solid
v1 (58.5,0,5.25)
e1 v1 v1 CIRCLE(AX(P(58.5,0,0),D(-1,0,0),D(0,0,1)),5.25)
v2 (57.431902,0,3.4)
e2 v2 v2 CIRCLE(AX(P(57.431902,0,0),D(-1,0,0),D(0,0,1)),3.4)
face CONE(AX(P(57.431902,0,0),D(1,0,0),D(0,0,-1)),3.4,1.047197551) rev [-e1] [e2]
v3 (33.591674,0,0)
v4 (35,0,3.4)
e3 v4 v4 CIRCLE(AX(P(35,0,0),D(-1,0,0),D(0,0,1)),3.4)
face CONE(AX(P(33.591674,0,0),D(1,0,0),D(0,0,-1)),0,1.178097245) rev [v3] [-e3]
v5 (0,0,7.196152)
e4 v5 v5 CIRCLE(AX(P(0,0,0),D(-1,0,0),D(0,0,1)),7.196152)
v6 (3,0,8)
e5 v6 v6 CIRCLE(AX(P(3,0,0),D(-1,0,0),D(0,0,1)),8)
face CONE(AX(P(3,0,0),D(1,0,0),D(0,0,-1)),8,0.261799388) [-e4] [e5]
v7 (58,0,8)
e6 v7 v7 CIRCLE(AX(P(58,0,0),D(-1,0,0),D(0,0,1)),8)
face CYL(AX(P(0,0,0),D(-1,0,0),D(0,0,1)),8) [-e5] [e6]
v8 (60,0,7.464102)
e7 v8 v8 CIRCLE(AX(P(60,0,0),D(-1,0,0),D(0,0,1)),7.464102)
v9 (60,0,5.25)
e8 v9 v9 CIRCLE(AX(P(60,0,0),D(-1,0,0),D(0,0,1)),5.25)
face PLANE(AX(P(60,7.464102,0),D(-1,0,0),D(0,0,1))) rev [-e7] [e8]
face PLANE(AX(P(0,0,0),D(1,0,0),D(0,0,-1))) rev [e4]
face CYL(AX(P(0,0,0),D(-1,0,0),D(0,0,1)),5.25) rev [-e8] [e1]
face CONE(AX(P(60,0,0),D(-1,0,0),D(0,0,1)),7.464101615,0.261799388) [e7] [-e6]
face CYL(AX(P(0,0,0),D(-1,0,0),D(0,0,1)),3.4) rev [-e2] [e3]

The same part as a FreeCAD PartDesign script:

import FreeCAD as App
import Part
import Sketcher
Q = App.Units.Quantity


def add_polygon(sketch, points):
    """Adds a closed chain of lines whose ends are joined by coincident constraints."""
    first, n = sketch.GeometryCount, len(points)
    for a, b in zip(points, points[1:] + points[:1]):
        sketch.addGeometry(Part.LineSegment(App.Vector(*a, 0), App.Vector(*b, 0)), False)
    for i in range(n):
        sketch.addConstraint(Sketcher.Constraint("Coincident", first + i, 2, first + (i + 1) % n, 1))

doc = App.newDocument("Part")
params = doc.addObject("Spreadsheet::Sheet", "Params")
for row, (alias, value) in enumerate([
    ("sketch1_width", "55 mm"),
    ("sketch1_width2", "1.5 mm"),
    ("revolution_angle", "360 deg"),
], start=1):
    params.set(f"A{row}", alias)
    params.set(f"B{row}", "=" + value)
    params.setAlias(f"B{row}", alias)

body = doc.addObject("PartDesign::Body", "Body")

# Sketch on XY plane
sketch1 = body.newObject("Sketcher::SketchObject", "Sketch")
sketch1.AttachmentSupport = (doc.getObject("XY_Plane"), [""])
sketch1.MapMode = "FlatFace"
add_polygon(sketch1, [(58, 8), (3, 8), (0, 7.2), (0, 0), (33.6, 0), (35, 3.4), (57.4, 3.4), (58.5, 5.2), (60, 5.2), (60, 7.5)])  # lines 0-9
sketch1.addConstraint([
    Sketcher.Constraint("Horizontal", 0),
    Sketcher.Constraint("Vertical", 2),
    Sketcher.Constraint("Horizontal", 3),
    Sketcher.Constraint("Horizontal", 5),
    Sketcher.Constraint("Horizontal", 7),
    Sketcher.Constraint("Vertical", 8),
    Sketcher.Constraint("Coincident", 2, 2, -1, 1),
    Sketcher.Constraint("DistanceX", 0, 2, 0, 1, Q("55 mm")),
    Sketcher.Constraint("Angle", 1, Q("-165 deg")),
    Sketcher.Constraint("Angle", 6, Q("60 deg")),
    Sketcher.Constraint("Angle", 9, Q("165 deg")),
    Sketcher.Constraint("DistanceX", 7, 1, 7, 2, Q("1.5 mm")),
    Sketcher.Constraint("DistanceX", -1, 1, 0, 2, Q("3 mm")),
    Sketcher.Constraint("DistanceY", -1, 1, 0, 2, Q("8 mm")),
    Sketcher.Constraint("DistanceX", -1, 1, 4, 2, Q("35 mm")),
    Sketcher.Constraint("DistanceX", -1, 1, 7, 2, Q("60 mm")),
    Sketcher.Constraint("Angle", 4, Q("67.5 deg")),
    Sketcher.Constraint("DistanceY", -1, 1, 4, 2, Q("3.4 mm")),
    Sketcher.Constraint("DistanceY", -1, 1, 6, 2, Q("5.25 mm")),
])
sketch1.setExpression("Constraints[17]", "Params.sketch1_width")
sketch1.setExpression("Constraints[21]", "Params.sketch1_width2")
revolution = body.newObject("PartDesign::Revolution", "Revolution")
revolution.Profile = sketch1
revolution.ReferenceAxis = (sketch1, ["H_Axis"])
revolution.setExpression("Angle", "Params.revolution_angle")

doc.recompute()
